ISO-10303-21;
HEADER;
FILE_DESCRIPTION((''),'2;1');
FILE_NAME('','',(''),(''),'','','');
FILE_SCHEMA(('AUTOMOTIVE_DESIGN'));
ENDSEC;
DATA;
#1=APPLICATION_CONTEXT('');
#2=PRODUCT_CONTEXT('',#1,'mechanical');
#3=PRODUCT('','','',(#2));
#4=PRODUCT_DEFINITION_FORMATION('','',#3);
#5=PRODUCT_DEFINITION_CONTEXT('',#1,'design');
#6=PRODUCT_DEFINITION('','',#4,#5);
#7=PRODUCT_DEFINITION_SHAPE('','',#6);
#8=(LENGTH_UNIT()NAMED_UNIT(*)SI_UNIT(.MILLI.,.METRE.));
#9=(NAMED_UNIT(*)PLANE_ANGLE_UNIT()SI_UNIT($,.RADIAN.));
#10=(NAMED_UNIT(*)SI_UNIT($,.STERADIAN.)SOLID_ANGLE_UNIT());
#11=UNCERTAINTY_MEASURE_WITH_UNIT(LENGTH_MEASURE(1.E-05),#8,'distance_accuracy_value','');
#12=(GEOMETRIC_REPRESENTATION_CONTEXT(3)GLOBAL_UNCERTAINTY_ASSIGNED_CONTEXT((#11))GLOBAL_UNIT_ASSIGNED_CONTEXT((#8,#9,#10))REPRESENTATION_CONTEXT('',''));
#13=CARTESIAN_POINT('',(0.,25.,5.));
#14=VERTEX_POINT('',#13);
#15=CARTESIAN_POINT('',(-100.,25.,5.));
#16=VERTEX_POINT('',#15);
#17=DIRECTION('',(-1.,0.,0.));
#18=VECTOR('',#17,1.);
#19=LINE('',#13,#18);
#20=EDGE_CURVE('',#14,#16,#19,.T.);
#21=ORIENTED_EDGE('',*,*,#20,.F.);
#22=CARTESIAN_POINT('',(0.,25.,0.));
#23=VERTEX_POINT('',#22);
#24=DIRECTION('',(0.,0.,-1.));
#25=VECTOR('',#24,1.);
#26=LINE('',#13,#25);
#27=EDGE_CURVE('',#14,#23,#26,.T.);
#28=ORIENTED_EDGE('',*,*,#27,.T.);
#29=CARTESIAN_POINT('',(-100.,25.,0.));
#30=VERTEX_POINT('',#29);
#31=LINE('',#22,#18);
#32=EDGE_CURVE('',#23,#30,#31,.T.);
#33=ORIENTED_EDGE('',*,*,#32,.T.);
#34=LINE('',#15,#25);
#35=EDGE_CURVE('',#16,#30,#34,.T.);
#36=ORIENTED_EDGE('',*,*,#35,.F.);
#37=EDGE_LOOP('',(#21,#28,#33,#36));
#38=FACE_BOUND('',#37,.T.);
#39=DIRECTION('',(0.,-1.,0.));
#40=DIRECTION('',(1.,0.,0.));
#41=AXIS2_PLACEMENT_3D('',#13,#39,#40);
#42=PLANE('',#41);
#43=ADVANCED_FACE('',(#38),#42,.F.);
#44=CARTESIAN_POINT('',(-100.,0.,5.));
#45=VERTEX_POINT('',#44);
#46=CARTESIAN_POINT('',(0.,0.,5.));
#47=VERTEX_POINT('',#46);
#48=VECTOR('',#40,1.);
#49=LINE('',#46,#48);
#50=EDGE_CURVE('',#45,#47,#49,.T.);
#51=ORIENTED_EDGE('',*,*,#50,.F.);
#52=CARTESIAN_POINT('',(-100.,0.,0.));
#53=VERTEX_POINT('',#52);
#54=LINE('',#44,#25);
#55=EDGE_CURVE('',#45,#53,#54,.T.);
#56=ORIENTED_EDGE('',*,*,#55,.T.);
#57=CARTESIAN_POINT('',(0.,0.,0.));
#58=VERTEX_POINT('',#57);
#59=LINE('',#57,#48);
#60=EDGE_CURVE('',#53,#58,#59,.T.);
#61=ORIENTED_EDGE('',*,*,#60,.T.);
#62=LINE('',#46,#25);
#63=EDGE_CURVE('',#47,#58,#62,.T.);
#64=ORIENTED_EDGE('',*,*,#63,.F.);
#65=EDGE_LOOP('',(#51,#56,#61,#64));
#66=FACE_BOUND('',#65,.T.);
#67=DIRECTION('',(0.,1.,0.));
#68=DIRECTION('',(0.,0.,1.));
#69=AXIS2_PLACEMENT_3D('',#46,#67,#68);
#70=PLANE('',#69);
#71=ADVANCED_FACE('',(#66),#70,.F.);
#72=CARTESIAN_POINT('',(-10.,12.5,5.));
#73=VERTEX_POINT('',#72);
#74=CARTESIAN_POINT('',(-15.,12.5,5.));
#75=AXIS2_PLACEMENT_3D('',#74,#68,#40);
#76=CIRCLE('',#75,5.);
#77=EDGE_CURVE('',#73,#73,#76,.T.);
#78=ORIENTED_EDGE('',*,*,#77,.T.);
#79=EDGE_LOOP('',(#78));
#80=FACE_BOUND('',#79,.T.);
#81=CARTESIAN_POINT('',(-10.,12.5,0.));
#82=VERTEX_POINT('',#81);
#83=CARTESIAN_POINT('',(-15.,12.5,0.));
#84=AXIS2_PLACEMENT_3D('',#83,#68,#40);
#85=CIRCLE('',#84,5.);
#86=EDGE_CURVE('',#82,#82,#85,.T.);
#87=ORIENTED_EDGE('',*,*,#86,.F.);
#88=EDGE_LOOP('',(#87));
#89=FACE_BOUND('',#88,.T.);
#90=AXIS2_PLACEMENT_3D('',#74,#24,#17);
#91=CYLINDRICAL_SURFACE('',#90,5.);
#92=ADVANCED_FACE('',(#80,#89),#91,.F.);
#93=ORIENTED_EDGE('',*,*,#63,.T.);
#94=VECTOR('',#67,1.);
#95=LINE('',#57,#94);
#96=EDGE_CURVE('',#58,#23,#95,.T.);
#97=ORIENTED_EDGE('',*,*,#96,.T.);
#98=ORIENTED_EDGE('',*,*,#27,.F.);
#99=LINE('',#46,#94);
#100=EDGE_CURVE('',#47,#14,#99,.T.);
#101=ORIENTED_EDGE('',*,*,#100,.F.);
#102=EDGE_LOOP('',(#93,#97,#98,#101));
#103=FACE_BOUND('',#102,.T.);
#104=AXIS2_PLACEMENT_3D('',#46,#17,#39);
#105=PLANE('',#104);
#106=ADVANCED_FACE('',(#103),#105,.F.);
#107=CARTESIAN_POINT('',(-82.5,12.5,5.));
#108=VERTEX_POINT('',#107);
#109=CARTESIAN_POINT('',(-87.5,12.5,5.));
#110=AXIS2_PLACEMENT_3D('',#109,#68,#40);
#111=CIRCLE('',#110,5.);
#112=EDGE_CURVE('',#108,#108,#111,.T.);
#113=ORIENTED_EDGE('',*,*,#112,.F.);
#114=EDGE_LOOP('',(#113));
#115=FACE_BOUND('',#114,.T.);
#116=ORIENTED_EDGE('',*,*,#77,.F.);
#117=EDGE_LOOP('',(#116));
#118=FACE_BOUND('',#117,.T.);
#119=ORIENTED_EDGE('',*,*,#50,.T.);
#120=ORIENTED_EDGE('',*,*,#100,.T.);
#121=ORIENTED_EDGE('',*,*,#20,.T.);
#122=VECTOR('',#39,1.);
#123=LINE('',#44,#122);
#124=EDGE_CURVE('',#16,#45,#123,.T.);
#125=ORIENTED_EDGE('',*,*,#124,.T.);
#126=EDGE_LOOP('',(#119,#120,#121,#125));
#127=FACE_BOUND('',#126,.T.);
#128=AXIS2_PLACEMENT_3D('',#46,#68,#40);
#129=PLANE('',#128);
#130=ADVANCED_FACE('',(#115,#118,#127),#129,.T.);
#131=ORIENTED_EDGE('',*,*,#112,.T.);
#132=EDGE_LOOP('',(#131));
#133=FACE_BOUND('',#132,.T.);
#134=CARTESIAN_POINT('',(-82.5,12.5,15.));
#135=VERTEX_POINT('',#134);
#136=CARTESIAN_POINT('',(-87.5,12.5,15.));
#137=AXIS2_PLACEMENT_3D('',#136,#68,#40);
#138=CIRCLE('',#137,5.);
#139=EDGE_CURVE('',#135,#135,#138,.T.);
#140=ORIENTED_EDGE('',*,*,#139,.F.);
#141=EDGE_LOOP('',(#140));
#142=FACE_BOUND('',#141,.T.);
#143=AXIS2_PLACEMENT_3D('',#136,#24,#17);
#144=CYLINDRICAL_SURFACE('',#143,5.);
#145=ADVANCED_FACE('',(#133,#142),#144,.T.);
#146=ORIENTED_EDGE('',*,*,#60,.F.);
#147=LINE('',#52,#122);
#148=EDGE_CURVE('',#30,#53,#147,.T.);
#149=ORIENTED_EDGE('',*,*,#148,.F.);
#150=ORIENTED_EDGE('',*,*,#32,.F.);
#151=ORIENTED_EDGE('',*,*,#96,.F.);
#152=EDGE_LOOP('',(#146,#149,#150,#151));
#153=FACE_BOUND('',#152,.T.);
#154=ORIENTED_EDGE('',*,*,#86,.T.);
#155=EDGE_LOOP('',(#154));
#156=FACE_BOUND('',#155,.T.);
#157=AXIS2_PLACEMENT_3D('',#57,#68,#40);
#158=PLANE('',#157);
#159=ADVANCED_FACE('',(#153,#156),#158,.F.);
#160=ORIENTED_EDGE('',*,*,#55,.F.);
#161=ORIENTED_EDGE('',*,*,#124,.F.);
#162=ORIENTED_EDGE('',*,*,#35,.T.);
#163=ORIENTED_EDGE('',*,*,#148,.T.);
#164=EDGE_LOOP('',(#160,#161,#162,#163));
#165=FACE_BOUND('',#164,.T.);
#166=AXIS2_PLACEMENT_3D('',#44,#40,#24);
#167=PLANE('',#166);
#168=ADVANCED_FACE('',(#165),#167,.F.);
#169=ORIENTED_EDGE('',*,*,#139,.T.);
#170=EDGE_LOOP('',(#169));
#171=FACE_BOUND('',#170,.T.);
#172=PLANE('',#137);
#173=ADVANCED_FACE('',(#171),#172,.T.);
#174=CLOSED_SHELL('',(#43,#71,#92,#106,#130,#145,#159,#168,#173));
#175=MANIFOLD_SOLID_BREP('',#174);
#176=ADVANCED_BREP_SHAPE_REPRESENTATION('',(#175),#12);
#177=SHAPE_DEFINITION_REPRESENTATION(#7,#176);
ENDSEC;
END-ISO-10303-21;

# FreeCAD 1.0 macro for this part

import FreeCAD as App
import Part
import Sketcher

V = App.Vector

doc = App.newDocument("Part")
body = doc.addObject("PartDesign::Body", "Body")

# Sketch on XY plane
sketch1 = body.newObject("Sketcher::SketchObject", "Sketch")
sketch1.AttachmentSupport = (doc.getObject("XY_Plane"), [""])
sketch1.MapMode = "FlatFace"
sketch1.addGeometry(Part.LineSegment(V(-100, 25, 0), V(-100, 0, 0)), False)
sketch1.addGeometry(Part.LineSegment(V(-100, 0, 0), V(0, 0, 0)), False)
sketch1.addGeometry(Part.LineSegment(V(0, 0, 0), V(0, 25, 0)), False)
sketch1.addGeometry(Part.LineSegment(V(0, 25, 0), V(-100, 25, 0)), False)
sketch1.addGeometry(Part.Circle(V(-15, 12, 0), V(0, 0, 1), 5), False)
sketch1.addConstraint(Sketcher.Constraint("Coincident", 0, 2, 1, 1))
sketch1.addConstraint(Sketcher.Constraint("Coincident", 1, 2, 2, 1))
sketch1.addConstraint(Sketcher.Constraint("Coincident", 2, 2, 3, 1))
sketch1.addConstraint(Sketcher.Constraint("Coincident", 3, 2, 0, 1))
sketch1.addConstraint(Sketcher.Constraint("Vertical", 0))
sketch1.addConstraint(Sketcher.Constraint("Horizontal", 1))
sketch1.addConstraint(Sketcher.Constraint("Vertical", 2))
sketch1.addConstraint(Sketcher.Constraint("Horizontal", 3))
sketch1.addConstraint(Sketcher.Constraint("Coincident", 1, 2, -1, 1))
sketch1.addConstraint(Sketcher.Constraint("Diameter", 4, 10.0))
sketch1.addConstraint(Sketcher.Constraint("DistanceX", 1, 1, 1, 2, 100.0))
sketch1.addConstraint(Sketcher.Constraint("DistanceY", 0, 2, 0, 1, 25.0))
sketch1.addConstraint(Sketcher.Constraint("DistanceX", 4, 3, -1, 1, 15.0))
sketch1.addConstraint(Sketcher.Constraint("DistanceY", -1, 1, 4, 3, 12.5))
pad1 = body.newObject("PartDesign::Pad", "Pad")
pad1.Profile = sketch1
pad1.Length = 5

# Sketch on XY plane
sketch2 = body.newObject("Sketcher::SketchObject", "Sketch001")
sketch2.AttachmentSupport = (doc.getObject("XY_Plane"), [""])
sketch2.MapMode = "FlatFace"
sketch2.AttachmentOffset = App.Placement(V(0, 0, 5), App.Rotation())
sketch2.addGeometry(Part.Circle(V(-88, 12, 0), V(0, 0, 1), 5), False)
sketch2.addConstraint(Sketcher.Constraint("Diameter", 0, 10.0))
sketch2.addConstraint(Sketcher.Constraint("DistanceX", 0, 3, -1, 1, 87.5))
sketch2.addConstraint(Sketcher.Constraint("DistanceY", -1, 1, 0, 3, 12.5))
pad2 = body.newObject("PartDesign::Pad", "Pad001")
pad2.Profile = sketch2
pad2.Length = 10

doc.recompute()
